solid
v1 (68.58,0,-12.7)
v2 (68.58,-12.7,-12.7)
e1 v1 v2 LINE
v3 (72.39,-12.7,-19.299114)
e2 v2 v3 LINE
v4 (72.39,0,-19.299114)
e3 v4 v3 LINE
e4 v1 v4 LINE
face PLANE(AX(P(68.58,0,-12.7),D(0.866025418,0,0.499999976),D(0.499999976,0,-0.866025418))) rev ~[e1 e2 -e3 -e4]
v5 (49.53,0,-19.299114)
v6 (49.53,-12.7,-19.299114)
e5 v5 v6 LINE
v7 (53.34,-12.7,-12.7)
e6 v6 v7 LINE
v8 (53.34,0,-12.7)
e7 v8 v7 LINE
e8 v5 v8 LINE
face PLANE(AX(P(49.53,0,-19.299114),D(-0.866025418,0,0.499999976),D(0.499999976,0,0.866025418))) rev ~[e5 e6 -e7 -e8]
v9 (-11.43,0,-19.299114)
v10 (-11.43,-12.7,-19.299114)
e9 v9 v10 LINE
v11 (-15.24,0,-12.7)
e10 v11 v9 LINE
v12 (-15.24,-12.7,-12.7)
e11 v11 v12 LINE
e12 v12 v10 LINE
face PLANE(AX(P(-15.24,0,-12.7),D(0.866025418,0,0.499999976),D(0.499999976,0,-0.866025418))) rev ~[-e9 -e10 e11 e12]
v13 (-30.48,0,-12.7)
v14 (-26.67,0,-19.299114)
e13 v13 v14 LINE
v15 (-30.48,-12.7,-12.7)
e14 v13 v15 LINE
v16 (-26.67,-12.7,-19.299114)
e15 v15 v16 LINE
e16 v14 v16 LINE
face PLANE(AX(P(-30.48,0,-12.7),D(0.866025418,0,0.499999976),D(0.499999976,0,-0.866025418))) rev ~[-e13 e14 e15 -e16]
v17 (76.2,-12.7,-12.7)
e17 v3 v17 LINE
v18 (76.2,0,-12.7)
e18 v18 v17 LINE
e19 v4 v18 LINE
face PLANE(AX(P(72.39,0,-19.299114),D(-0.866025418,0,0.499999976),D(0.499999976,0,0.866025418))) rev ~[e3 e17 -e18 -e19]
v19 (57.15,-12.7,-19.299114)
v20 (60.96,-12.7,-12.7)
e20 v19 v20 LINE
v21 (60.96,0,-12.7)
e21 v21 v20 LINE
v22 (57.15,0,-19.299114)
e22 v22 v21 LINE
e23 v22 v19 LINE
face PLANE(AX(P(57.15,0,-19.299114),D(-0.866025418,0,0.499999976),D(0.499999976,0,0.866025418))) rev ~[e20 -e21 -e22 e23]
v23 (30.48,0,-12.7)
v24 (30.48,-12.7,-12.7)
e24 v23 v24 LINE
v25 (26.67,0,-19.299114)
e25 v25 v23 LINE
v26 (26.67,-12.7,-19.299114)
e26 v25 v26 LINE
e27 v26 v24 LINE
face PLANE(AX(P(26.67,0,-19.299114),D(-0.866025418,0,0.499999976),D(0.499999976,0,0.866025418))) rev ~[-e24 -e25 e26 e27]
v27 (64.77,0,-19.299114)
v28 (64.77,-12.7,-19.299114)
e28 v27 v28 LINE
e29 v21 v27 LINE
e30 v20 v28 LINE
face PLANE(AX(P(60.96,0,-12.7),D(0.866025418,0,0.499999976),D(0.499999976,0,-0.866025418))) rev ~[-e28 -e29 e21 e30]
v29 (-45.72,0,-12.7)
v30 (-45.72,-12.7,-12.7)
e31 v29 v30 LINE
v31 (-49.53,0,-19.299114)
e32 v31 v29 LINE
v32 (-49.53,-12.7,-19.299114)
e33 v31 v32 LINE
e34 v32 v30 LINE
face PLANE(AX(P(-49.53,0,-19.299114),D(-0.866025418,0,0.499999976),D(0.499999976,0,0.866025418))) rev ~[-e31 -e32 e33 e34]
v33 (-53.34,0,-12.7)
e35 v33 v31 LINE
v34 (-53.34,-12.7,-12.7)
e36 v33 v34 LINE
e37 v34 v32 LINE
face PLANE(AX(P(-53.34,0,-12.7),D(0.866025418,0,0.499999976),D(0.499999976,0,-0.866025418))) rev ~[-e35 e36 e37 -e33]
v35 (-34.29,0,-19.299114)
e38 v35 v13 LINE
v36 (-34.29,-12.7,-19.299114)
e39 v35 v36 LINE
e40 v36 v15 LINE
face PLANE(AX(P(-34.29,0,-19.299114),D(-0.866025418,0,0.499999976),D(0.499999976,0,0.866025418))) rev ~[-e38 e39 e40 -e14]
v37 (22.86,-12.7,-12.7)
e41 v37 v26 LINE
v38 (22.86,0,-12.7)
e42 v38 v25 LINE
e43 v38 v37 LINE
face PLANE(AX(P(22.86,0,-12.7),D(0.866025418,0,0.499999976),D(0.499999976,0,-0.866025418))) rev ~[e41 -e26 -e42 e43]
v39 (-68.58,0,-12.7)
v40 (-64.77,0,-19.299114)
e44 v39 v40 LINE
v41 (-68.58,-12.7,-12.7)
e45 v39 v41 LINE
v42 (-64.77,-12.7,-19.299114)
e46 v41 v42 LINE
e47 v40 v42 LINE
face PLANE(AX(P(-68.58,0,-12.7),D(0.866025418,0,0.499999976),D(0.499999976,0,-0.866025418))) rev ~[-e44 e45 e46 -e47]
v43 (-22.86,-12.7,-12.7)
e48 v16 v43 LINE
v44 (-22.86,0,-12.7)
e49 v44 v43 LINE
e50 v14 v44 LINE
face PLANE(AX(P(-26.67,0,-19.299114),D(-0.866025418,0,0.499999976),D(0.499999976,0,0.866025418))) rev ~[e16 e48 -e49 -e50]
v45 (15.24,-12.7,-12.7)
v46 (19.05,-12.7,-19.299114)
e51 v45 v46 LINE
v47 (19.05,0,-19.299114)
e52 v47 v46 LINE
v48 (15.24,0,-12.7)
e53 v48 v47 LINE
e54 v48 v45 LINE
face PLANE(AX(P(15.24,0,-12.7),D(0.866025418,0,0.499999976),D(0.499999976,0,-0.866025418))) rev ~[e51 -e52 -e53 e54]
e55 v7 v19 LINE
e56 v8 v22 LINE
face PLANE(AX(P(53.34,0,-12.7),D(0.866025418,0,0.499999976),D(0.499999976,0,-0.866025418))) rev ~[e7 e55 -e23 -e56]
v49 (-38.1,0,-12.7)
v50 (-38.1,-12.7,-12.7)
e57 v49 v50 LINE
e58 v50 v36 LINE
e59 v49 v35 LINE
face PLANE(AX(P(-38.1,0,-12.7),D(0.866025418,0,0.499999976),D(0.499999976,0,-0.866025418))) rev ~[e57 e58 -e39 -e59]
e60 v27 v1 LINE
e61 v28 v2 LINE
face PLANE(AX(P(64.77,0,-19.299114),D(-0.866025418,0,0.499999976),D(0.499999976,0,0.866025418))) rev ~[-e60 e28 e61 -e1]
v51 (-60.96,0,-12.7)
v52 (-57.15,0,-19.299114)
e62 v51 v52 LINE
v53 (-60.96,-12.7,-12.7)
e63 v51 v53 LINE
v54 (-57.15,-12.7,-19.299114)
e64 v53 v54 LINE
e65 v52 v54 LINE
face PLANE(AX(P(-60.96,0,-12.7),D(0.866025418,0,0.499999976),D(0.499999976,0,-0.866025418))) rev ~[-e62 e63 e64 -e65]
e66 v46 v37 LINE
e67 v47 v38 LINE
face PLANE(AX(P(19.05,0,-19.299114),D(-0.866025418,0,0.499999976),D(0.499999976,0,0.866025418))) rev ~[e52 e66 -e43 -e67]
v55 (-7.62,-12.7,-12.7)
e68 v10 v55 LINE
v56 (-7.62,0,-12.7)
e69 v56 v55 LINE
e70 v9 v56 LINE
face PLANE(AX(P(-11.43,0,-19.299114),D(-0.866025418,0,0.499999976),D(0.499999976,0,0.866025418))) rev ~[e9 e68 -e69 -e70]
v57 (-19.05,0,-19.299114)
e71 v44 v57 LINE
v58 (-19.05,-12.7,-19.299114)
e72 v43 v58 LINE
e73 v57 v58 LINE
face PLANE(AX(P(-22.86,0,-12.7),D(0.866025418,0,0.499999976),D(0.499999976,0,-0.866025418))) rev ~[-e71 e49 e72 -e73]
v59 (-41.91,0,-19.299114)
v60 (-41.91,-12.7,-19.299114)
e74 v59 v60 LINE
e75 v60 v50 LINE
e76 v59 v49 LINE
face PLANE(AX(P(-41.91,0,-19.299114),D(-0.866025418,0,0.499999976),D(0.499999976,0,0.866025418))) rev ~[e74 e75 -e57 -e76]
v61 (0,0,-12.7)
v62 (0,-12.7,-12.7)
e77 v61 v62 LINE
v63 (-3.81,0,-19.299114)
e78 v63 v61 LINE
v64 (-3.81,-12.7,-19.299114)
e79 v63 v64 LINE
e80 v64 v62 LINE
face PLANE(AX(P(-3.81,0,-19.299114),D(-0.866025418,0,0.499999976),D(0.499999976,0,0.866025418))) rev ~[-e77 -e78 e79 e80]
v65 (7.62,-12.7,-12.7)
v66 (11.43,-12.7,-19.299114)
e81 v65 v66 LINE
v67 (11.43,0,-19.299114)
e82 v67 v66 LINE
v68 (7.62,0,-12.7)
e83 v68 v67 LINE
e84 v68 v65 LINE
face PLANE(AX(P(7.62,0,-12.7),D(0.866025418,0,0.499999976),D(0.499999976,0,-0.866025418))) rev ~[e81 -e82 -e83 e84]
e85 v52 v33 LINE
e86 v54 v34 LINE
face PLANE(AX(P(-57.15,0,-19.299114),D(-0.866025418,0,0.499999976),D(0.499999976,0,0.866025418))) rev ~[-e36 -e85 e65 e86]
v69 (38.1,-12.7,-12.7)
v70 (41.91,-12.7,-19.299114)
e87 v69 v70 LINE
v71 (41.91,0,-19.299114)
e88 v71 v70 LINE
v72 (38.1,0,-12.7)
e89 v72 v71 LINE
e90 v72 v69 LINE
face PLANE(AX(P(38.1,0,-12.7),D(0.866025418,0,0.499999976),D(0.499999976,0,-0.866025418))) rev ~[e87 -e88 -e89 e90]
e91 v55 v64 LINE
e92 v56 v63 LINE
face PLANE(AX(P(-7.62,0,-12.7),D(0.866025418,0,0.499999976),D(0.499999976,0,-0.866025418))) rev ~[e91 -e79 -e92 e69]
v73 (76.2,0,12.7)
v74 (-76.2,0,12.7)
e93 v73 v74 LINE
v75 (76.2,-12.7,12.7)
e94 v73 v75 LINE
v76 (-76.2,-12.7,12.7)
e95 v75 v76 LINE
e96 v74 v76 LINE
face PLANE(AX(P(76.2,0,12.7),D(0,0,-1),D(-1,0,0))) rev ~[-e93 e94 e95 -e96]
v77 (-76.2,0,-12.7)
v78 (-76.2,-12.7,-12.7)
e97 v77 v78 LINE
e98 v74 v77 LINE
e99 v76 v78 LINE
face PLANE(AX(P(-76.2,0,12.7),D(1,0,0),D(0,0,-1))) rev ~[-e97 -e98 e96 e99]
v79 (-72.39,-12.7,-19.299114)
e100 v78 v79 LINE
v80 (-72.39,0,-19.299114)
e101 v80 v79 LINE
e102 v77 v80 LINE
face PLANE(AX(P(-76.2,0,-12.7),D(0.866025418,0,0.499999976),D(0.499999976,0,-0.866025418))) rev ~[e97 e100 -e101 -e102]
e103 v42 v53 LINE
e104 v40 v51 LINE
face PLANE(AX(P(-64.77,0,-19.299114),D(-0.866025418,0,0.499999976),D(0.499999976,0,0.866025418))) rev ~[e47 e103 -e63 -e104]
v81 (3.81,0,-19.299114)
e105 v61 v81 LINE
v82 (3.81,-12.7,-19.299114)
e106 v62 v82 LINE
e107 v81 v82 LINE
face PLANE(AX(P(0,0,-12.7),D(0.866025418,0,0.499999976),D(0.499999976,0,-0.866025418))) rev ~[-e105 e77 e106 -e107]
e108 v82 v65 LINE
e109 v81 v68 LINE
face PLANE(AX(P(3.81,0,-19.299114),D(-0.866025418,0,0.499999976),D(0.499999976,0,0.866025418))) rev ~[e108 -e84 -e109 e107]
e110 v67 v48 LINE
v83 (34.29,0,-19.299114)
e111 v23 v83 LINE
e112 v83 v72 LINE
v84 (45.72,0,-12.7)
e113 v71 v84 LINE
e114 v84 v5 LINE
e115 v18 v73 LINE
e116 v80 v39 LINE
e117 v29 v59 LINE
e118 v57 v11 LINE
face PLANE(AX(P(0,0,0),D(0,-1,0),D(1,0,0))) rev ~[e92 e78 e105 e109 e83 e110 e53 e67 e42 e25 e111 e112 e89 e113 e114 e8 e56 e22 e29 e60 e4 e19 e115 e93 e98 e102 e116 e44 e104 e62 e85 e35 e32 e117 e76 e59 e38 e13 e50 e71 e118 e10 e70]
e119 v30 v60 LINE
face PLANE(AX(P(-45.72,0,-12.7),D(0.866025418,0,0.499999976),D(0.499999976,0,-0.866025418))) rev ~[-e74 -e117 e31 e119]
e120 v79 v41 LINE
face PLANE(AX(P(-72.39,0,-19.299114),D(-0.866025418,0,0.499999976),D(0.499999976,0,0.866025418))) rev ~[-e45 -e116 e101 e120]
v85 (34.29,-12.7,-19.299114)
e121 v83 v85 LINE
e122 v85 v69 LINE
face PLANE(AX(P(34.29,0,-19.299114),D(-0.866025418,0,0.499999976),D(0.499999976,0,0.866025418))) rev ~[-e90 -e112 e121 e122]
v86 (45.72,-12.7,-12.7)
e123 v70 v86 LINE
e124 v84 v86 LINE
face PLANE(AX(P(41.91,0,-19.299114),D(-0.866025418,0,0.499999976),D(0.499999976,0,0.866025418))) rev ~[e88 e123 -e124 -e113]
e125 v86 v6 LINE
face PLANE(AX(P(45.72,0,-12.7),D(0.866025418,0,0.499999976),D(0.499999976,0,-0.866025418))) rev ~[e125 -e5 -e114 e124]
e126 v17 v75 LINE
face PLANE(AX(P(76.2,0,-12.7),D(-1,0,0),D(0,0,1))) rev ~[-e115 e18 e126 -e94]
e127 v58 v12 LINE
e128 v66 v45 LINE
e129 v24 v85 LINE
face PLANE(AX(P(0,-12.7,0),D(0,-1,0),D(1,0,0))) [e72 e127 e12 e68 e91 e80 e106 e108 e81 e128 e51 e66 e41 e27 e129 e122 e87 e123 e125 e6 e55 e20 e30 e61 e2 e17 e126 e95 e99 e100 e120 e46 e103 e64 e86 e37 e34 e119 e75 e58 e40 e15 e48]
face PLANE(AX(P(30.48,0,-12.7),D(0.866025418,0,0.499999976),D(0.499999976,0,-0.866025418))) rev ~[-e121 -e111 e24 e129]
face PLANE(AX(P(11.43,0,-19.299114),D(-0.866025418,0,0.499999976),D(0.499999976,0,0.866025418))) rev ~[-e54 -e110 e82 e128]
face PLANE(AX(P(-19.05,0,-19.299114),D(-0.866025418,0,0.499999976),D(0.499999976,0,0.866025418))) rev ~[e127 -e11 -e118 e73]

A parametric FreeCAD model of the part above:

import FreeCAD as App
import Part
import Sketcher

V = App.Vector
Q = App.Units.Quantity

doc = App.newDocument("Part")
params = doc.addObject("Spreadsheet::Sheet", "Params")
for row, (alias, value) in enumerate([
    ("sketch1_width", "6 in"),
    ("sketch1_height", "1 in"),
    ("pad1_length", "0.5 in"),
], start=1):
    params.set(f"A{row}", alias)
    params.set(f"B{row}", "=" + value)
    params.setAlias(f"B{row}", alias)

body = doc.addObject("PartDesign::Body", "Body")

# Sketch on XZ plane
sketch1 = body.newObject("Sketcher::SketchObject", "Sketch")
sketch1.AttachmentSupport = (doc.getObject("XZ_Plane"), [""])
sketch1.MapMode = "FlatFace"
sketch1.addGeometry(Part.LineSegment(V(76.2, -12.7, 0), V(76.2, 12.7, 0)), False)
sketch1.addGeometry(Part.LineSegment(V(76.2, 12.7, 0), V(-76.2, 12.7, 0)), False)
sketch1.addGeometry(Part.LineSegment(V(-76.2, 12.7, 0), V(-76.2, -12.7, 0)), False)
sketch1.addGeometry(Part.LineSegment(V(-76.2, -12.7, 0), V(-72.39, -19.299114, 0)), False)
sketch1.addGeometry(Part.LineSegment(V(-72.39, -19.299114, 0), V(-68.58, -12.7, 0)), False)
sketch1.addGeometry(Part.LineSegment(V(-68.58, -12.7, 0), V(-64.77, -19.299114, 0)), False)
sketch1.addGeometry(Part.LineSegment(V(-64.77, -19.299114, 0), V(-60.96, -12.7, 0)), False)
sketch1.addGeometry(Part.LineSegment(V(-60.96, -12.7, 0), V(-57.15, -19.299114, 0)), False)
sketch1.addGeometry(Part.LineSegment(V(-57.15, -19.299114, 0), V(-53.34, -12.7, 0)), False)
sketch1.addGeometry(Part.LineSegment(V(-53.34, -12.7, 0), V(-49.53, -19.299114, 0)), False)
sketch1.addGeometry(Part.LineSegment(V(-49.53, -19.299114, 0), V(-45.72, -12.7, 0)), False)
sketch1.addGeometry(Part.LineSegment(V(-45.72, -12.7, 0), V(-41.91, -19.299114, 0)), False)
sketch1.addGeometry(Part.LineSegment(V(-41.91, -19.299114, 0), V(-38.1, -12.7, 0)), False)
sketch1.addGeometry(Part.LineSegment(V(-38.1, -12.7, 0), V(-34.29, -19.299114, 0)), False)
sketch1.addGeometry(Part.LineSegment(V(-34.29, -19.299114, 0), V(-30.48, -12.7, 0)), False)
sketch1.addGeometry(Part.LineSegment(V(-30.48, -12.7, 0), V(-26.67, -19.299114, 0)), False)
sketch1.addGeometry(Part.LineSegment(V(-26.67, -19.299114, 0), V(-22.86, -12.7, 0)), False)
sketch1.addGeometry(Part.LineSegment(V(-22.86, -12.7, 0), V(-19.05, -19.299114, 0)), False)
sketch1.addGeometry(Part.LineSegment(V(-19.05, -19.299114, 0), V(-15.24, -12.7, 0)), False)
sketch1.addGeometry(Part.LineSegment(V(-15.24, -12.7, 0), V(-11.43, -19.299114, 0)), False)
sketch1.addGeometry(Part.LineSegment(V(-11.43, -19.299114, 0), V(-7.62, -12.7, 0)), False)
sketch1.addGeometry(Part.LineSegment(V(-7.62, -12.7, 0), V(-3.81, -19.299114, 0)), False)
sketch1.addGeometry(Part.LineSegment(V(-3.81, -19.299114, 0), V(0, -12.7, 0)), False)
sketch1.addGeometry(Part.LineSegment(V(0, -12.7, 0), V(3.81, -19.299114, 0)), False)
sketch1.addGeometry(Part.LineSegment(V(3.81, -19.299114, 0), V(7.62, -12.7, 0)), False)
sketch1.addGeometry(Part.LineSegment(V(7.62, -12.7, 0), V(11.43, -19.299114, 0)), False)
sketch1.addGeometry(Part.LineSegment(V(11.43, -19.299114, 0), V(15.24, -12.7, 0)), False)
sketch1.addGeometry(Part.LineSegment(V(15.24, -12.7, 0), V(19.05, -19.299114, 0)), False)
sketch1.addGeometry(Part.LineSegment(V(19.05, -19.299114, 0), V(22.86, -12.7, 0)), False)
sketch1.addGeometry(Part.LineSegment(V(22.86, -12.7, 0), V(26.67, -19.299114, 0)), False)
sketch1.addGeometry(Part.LineSegment(V(26.67, -19.299114, 0), V(30.48, -12.7, 0)), False)
sketch1.addGeometry(Part.LineSegment(V(30.48, -12.7, 0), V(34.29, -19.299114, 0)), False)
sketch1.addGeometry(Part.LineSegment(V(34.29, -19.299114, 0), V(38.1, -12.7, 0)), False)
sketch1.addGeometry(Part.LineSegment(V(38.1, -12.7, 0), V(41.91, -19.299114, 0)), False)
sketch1.addGeometry(Part.LineSegment(V(41.91, -19.299114, 0), V(45.72, -12.7, 0)), False)
sketch1.addGeometry(Part.LineSegment(V(45.72, -12.7, 0), V(49.53, -19.299114, 0)), False)
sketch1.addGeometry(Part.LineSegment(V(49.53, -19.299114, 0), V(53.34, -12.7, 0)), False)
sketch1.addGeometry(Part.LineSegment(V(53.34, -12.7, 0), V(57.15, -19.299114, 0)), False)
sketch1.addGeometry(Part.LineSegment(V(57.15, -19.299114, 0), V(60.96, -12.7, 0)), False)
sketch1.addGeometry(Part.LineSegment(V(60.96, -12.7, 0), V(64.77, -19.299114, 0)), False)
sketch1.addGeometry(Part.LineSegment(V(64.77, -19.299114, 0), V(68.58, -12.7, 0)), False)
sketch1.addGeometry(Part.LineSegment(V(68.58, -12.7, 0), V(72.39, -19.299114, 0)), False)
sketch1.addGeometry(Part.LineSegment(V(72.39, -19.299114, 0), V(76.2, -12.7, 0)), False)
sketch1.addConstraint(Sketcher.Constraint("Coincident", 0, 2, 1, 1))
sketch1.addConstraint(Sketcher.Constraint("Coincident", 1, 2, 2, 1))
sketch1.addConstraint(Sketcher.Constraint("Coincident", 2, 2, 3, 1))
sketch1.addConstraint(Sketcher.Constraint("Coincident", 3, 2, 4, 1))
sketch1.addConstraint(Sketcher.Constraint("Coincident", 4, 2, 5, 1))
sketch1.addConstraint(Sketcher.Constraint("Coincident", 5, 2, 6, 1))
sketch1.addConstraint(Sketcher.Constraint("Coincident", 6, 2, 7, 1))
sketch1.addConstraint(Sketcher.Constraint("Coincident", 7, 2, 8, 1))
sketch1.addConstraint(Sketcher.Constraint("Coincident", 8, 2, 9, 1))
sketch1.addConstraint(Sketcher.Constraint("Coincident", 9, 2, 10, 1))
sketch1.addConstraint(Sketcher.Constraint("Coincident", 10, 2, 11, 1))
sketch1.addConstraint(Sketcher.Constraint("Coincident", 11, 2, 12, 1))
sketch1.addConstraint(Sketcher.Constraint("Coincident", 12, 2, 13, 1))
sketch1.addConstraint(Sketcher.Constraint("Coincident", 13, 2, 14, 1))
sketch1.addConstraint(Sketcher.Constraint("Coincident", 14, 2, 15, 1))
sketch1.addConstraint(Sketcher.Constraint("Coincident", 15, 2, 16, 1))
sketch1.addConstraint(Sketcher.Constraint("Coincident", 16, 2, 17, 1))
sketch1.addConstraint(Sketcher.Constraint("Coincident", 17, 2, 18, 1))
sketch1.addConstraint(Sketcher.Constraint("Coincident", 18, 2, 19, 1))
sketch1.addConstraint(Sketcher.Constraint("Coincident", 19, 2, 20, 1))
sketch1.addConstraint(Sketcher.Constraint("Coincident", 20, 2, 21, 1))
sketch1.addConstraint(Sketcher.Constraint("Coincident", 21, 2, 22, 1))
sketch1.addConstraint(Sketcher.Constraint("Coincident", 22, 2, 23, 1))
sketch1.addConstraint(Sketcher.Constraint("Coincident", 23, 2, 24, 1))
sketch1.addConstraint(Sketcher.Constraint("Coincident", 24, 2, 25, 1))
sketch1.addConstraint(Sketcher.Constraint("Coincident", 25, 2, 26, 1))
sketch1.addConstraint(Sketcher.Constraint("Coincident", 26, 2, 27, 1))
sketch1.addConstraint(Sketcher.Constraint("Coincident", 27, 2, 28, 1))
sketch1.addConstraint(Sketcher.Constraint("Coincident", 28, 2, 29, 1))
sketch1.addConstraint(Sketcher.Constraint("Coincident", 29, 2, 30, 1))
sketch1.addConstraint(Sketcher.Constraint("Coincident", 30, 2, 31, 1))
sketch1.addConstraint(Sketcher.Constraint("Coincident", 31, 2, 32, 1))
sketch1.addConstraint(Sketcher.Constraint("Coincident", 32, 2, 33, 1))
sketch1.addConstraint(Sketcher.Constraint("Coincident", 33, 2, 34, 1))
sketch1.addConstraint(Sketcher.Constraint("Coincident", 34, 2, 35, 1))
sketch1.addConstraint(Sketcher.Constraint("Coincident", 35, 2, 36, 1))
sketch1.addConstraint(Sketcher.Constraint("Coincident", 36, 2, 37, 1))
sketch1.addConstraint(Sketcher.Constraint("Coincident", 37, 2, 38, 1))
sketch1.addConstraint(Sketcher.Constraint("Coincident", 38, 2, 39, 1))
sketch1.addConstraint(Sketcher.Constraint("Coincident", 39, 2, 40, 1))
sketch1.addConstraint(Sketcher.Constraint("Coincident", 40, 2, 41, 1))
sketch1.addConstraint(Sketcher.Constraint("Coincident", 41, 2, 42, 1))
sketch1.addConstraint(Sketcher.Constraint("Coincident", 42, 2, 0, 1))
sketch1.addConstraint(Sketcher.Constraint("Vertical", 0))
sketch1.addConstraint(Sketcher.Constraint("Horizontal", 1))
sketch1.addConstraint(Sketcher.Constraint("Vertical", 2))
sketch1.addConstraint(Sketcher.Constraint("Symmetric", 0, 2, 2, 2, -1, 1))
sketch1.addConstraint(Sketcher.Constraint("Symmetric", 21, 2, 23, 2, -2))
sketch1.addConstraint(Sketcher.Constraint("Symmetric", 20, 2, 24, 2, -2))
sketch1.addConstraint(Sketcher.Constraint("Symmetric", 19, 2, 25, 2, -2))
sketch1.addConstraint(Sketcher.Constraint("Symmetric", 18, 2, 26, 2, -2))
sketch1.addConstraint(Sketcher.Constraint("Symmetric", 17, 2, 27, 2, -2))
sketch1.addConstraint(Sketcher.Constraint("Symmetric", 16, 2, 28, 2, -2))
sketch1.addConstraint(Sketcher.Constraint("Symmetric", 15, 2, 29, 2, -2))
sketch1.addConstraint(Sketcher.Constraint("Symmetric", 14, 2, 30, 2, -2))
sketch1.addConstraint(Sketcher.Constraint("Symmetric", 13, 2, 31, 2, -2))
sketch1.addConstraint(Sketcher.Constraint("Symmetric", 12, 2, 32, 2, -2))
sketch1.addConstraint(Sketcher.Constraint("Symmetric", 11, 2, 33, 2, -2))
sketch1.addConstraint(Sketcher.Constraint("Symmetric", 10, 2, 34, 2, -2))
sketch1.addConstraint(Sketcher.Constraint("Symmetric", 9, 2, 35, 2, -2))
sketch1.addConstraint(Sketcher.Constraint("Symmetric", 8, 2, 36, 2, -2))
sketch1.addConstraint(Sketcher.Constraint("Symmetric", 7, 2, 37, 2, -2))
sketch1.addConstraint(Sketcher.Constraint("Symmetric", 6, 2, 38, 2, -2))
sketch1.addConstraint(Sketcher.Constraint("Symmetric", 5, 2, 39, 2, -2))
sketch1.addConstraint(Sketcher.Constraint("Symmetric", 4, 2, 40, 2, -2))
sketch1.addConstraint(Sketcher.Constraint("Symmetric", 3, 2, 41, 2, -2))
sketch1.addConstraint(Sketcher.Constraint("PointOnObject", 22, 2, -2))
sketch1.addConstraint(Sketcher.Constraint("Parallel", 3, 5))
sketch1.addConstraint(Sketcher.Constraint("Parallel", 4, 6))
sketch1.addConstraint(Sketcher.Constraint("Parallel", 5, 7))
sketch1.addConstraint(Sketcher.Constraint("Parallel", 6, 8))
sketch1.addConstraint(Sketcher.Constraint("Parallel", 7, 9))
sketch1.addConstraint(Sketcher.Constraint("Parallel", 8, 10))
sketch1.addConstraint(Sketcher.Constraint("Parallel", 9, 11))
sketch1.addConstraint(Sketcher.Constraint("Parallel", 10, 12))
sketch1.addConstraint(Sketcher.Constraint("Parallel", 11, 13))
sketch1.addConstraint(Sketcher.Constraint("Parallel", 12, 14))
sketch1.addConstraint(Sketcher.Constraint("Parallel", 13, 15))
sketch1.addConstraint(Sketcher.Constraint("Parallel", 14, 16))
sketch1.addConstraint(Sketcher.Constraint("Parallel", 15, 17))
sketch1.addConstraint(Sketcher.Constraint("Parallel", 16, 18))
sketch1.addConstraint(Sketcher.Constraint("Parallel", 17, 19))
sketch1.addConstraint(Sketcher.Constraint("Parallel", 18, 20))
sketch1.addConstraint(Sketcher.Constraint("Parallel", 19, 21))
sketch1.addConstraint(Sketcher.Constraint("Parallel", 20, 22))
sketch1.addConstraint(Sketcher.Constraint("Parallel", 21, 23))
sketch1.addConstraint(Sketcher.Constraint("Parallel", 40, 42))
sketch1.addConstraint(Sketcher.Constraint("Horizontal", 2, 2, 4, 2))
sketch1.addConstraint(Sketcher.Constraint("Horizontal", 3, 2, 5, 2))
sketch1.addConstraint(Sketcher.Constraint("Horizontal", 4, 2, 6, 2))
sketch1.addConstraint(Sketcher.Constraint("Horizontal", 5, 2, 7, 2))
sketch1.addConstraint(Sketcher.Constraint("Horizontal", 6, 2, 8, 2))
sketch1.addConstraint(Sketcher.Constraint("Horizontal", 7, 2, 9, 2))
sketch1.addConstraint(Sketcher.Constraint("Horizontal", 8, 2, 10, 2))
sketch1.addConstraint(Sketcher.Constraint("Horizontal", 9, 2, 11, 2))
sketch1.addConstraint(Sketcher.Constraint("Horizontal", 10, 2, 12, 2))
sketch1.addConstraint(Sketcher.Constraint("Horizontal", 11, 2, 13, 2))
sketch1.addConstraint(Sketcher.Constraint("Horizontal", 12, 2, 14, 2))
sketch1.addConstraint(Sketcher.Constraint("Horizontal", 13, 2, 15, 2))
sketch1.addConstraint(Sketcher.Constraint("Horizontal", 14, 2, 16, 2))
sketch1.addConstraint(Sketcher.Constraint("Horizontal", 15, 2, 17, 2))
sketch1.addConstraint(Sketcher.Constraint("Horizontal", 16, 2, 18, 2))
sketch1.addConstraint(Sketcher.Constraint("Horizontal", 17, 2, 19, 2))
sketch1.addConstraint(Sketcher.Constraint("Horizontal", 18, 2, 20, 2))
sketch1.addConstraint(Sketcher.Constraint("Horizontal", 19, 2, 21, 2))
sketch1.addConstraint(Sketcher.Constraint("Horizontal", 20, 2, 22, 2))
sketch1.addConstraint(Sketcher.Constraint("DistanceX", 1, 2, 1, 1, Q("6 in")))
sketch1.addConstraint(Sketcher.Constraint("DistanceY", 0, 1, 0, 2, Q("1 in")))
sketch1.addConstraint(Sketcher.Constraint("Angle", 3, Q("-60.000002 deg")))
sketch1.setExpression("Constraints[106]", "Params.sketch1_width")
sketch1.setExpression("Constraints[107]", "Params.sketch1_height")
pad1 = body.newObject("PartDesign::Pad", "Pad")
pad1.Profile = sketch1
pad1.setExpression("Length", "Params.pad1_length")

doc.recompute()
